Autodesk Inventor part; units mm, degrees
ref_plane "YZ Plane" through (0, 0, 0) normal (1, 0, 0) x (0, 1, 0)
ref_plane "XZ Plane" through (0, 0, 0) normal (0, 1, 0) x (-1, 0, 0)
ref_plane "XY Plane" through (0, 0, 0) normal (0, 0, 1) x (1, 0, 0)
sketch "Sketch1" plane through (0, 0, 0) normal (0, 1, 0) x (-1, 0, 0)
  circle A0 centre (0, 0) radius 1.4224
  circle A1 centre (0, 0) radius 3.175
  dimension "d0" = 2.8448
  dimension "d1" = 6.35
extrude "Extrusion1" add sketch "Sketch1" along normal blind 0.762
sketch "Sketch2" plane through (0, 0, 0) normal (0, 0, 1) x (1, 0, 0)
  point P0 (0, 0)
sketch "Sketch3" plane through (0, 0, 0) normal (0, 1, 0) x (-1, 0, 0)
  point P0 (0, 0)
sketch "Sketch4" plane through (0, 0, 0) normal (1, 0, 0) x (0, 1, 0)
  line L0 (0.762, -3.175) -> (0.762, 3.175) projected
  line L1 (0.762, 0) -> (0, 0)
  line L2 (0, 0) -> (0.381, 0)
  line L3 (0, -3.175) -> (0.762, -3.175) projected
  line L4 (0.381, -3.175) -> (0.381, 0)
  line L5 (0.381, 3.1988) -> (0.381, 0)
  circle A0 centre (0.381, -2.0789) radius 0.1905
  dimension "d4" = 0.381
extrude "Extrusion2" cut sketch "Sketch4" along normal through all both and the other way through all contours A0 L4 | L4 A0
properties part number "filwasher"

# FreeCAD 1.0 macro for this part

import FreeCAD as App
import Part
import Sketcher
from FreeCAD import Vector
Q = App.Units.Quantity

doc = App.newDocument("Part")
body = doc.addObject("PartDesign::Body", "Body")

sketch1 = body.newObject("Sketcher::SketchObject", "Sketch")
sketch1.AttachmentSupport = (doc.getObject("XZ_Plane"), [""])
sketch1.MapMode = "FlatFace"
sketch1.addGeometry([
    Part.Circle(Vector(0, 0, 0), Vector(0, 0, 1), 3.2),
    Part.Circle(Vector(0, 0, 0), Vector(0, 0, 1), 1.4),
], False)
sketch1.addConstraint([
    Sketcher.Constraint("Coincident", 0, 3, -1, 1),
    Sketcher.Constraint("Coincident", 1, 3, -1, 1),
    Sketcher.Constraint("Diameter", 0, Q("0.25 in")),
    Sketcher.Constraint("Diameter", 1, Q("0.112 in")),
])
pad1 = body.newObject("PartDesign::Pad", "Pad")
pad1.Profile = sketch1
pad1.Length = Q("0.03 in")
pad1.Reversed = True

sketch2 = body.newObject("Sketcher::SketchObject", "Sketch001")
sketch2.AttachmentSupport = (doc.getObject("YZ_Plane"), [""])
sketch2.MapMode = "FlatFace"
sketch2.addGeometry(Part.Circle(Vector(0.38, -2.08, 0), Vector(0, 0, 1), 0.19), False)
sketch2.addConstraint([
    Sketcher.Constraint("Diameter", 0, Q("0.015 in")),
    Sketcher.Constraint("DistanceX", -1, 1, 0, 3, Q("0.015 in")),
    Sketcher.Constraint("DistanceY", 0, 3, -1, 1, Q("2.079 mm")),
])
pocket1 = body.newObject("PartDesign::Pocket", "Pocket")
pocket1.Profile = sketch2
pocket1.Type = "ThroughAll"
pocket1.Midplane = True

doc.recompute()
